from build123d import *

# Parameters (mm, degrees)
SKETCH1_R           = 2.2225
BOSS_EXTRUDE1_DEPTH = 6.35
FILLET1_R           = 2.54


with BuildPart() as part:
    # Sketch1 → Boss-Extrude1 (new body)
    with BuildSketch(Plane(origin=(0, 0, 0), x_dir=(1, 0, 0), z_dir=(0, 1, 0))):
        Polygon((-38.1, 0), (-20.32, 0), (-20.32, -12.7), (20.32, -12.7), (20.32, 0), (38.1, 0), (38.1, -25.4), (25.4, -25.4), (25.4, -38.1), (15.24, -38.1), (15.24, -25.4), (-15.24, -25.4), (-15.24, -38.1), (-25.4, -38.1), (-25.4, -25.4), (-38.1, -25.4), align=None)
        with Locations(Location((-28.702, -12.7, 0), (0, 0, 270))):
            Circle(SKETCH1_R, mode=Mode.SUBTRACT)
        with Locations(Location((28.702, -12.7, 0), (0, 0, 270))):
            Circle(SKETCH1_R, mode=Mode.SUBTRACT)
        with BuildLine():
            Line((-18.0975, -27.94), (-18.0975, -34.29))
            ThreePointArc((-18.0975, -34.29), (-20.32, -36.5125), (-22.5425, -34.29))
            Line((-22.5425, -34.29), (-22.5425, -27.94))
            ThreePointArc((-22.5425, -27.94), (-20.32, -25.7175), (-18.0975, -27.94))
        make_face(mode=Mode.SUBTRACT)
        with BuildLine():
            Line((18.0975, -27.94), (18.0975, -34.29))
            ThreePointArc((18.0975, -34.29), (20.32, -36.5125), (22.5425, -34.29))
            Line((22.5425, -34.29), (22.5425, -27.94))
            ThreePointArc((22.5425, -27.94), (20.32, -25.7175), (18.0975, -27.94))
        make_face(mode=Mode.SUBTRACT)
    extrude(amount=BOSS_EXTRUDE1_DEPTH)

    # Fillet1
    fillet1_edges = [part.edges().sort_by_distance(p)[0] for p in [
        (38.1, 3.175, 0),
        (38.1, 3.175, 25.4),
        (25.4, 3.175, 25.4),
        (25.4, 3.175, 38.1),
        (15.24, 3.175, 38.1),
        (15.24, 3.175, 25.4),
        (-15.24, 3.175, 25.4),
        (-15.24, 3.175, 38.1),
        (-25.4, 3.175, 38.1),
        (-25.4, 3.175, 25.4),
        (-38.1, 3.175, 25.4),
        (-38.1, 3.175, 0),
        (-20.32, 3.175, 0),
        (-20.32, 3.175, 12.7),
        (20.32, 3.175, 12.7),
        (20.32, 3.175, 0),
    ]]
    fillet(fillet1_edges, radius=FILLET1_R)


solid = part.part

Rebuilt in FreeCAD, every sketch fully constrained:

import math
import FreeCAD as App
import Part
import Sketcher

V = App.Vector
Q = App.Units.Quantity


def edges_at(feature, points):
    """Names of the edges that pass closest to the given points."""
    edges = feature.Shape.Edges
    near = lambda p: min(range(len(edges)), key=lambda i: edges[i].distToShape(Part.Vertex(*p))[0])
    return sorted({f"Edge{near(p) + 1}" for p in points})


def add_polygon(sketch, points):
    """Adds a closed chain of lines whose ends are joined by coincident constraints."""
    first, n = sketch.GeometryCount, len(points)
    for a, b in zip(points, points[1:] + points[:1]):
        sketch.addGeometry(Part.LineSegment(App.Vector(*a, 0), App.Vector(*b, 0)), False)
    for i in range(n):
        sketch.addConstraint(Sketcher.Constraint("Coincident", first + i, 2, first + (i + 1) % n, 1))

doc = App.newDocument("Part")
body = doc.addObject("PartDesign::Body", "Body")

# Sketch on XZ plane
sketch1 = body.newObject("Sketcher::SketchObject", "Sketch")
sketch1.AttachmentSupport = (doc.getObject("XZ_Plane"), [""])
sketch1.MapMode = "FlatFace"
add_polygon(sketch1, [(-20.3, 0), (-38.1, 0), (-38.1, 25.4), (-25.4, 25.4), (-25.4, 38.1), (-15.2, 38.1), (-15.2, 25.4), (15.2, 25.4), (15.2, 38.1), (25.4, 38.1), (25.4, 25.4), (38.1, 25.4), (38.1, 0), (20.3, 0), (20.3, 12.7), (-20.3, 12.7)])  # lines 0-15
sketch1.addGeometry(Part.ArcOfCircle(Part.Circle(V(20.3, 27.9, 0), V(0, 0, 1), 2.2), math.radians(180), math.radians(360)), False)  # 16
sketch1.addGeometry(Part.LineSegment(V(22.5, 27.9, 0), V(22.5, 34.3, 0)), False)  # 17
sketch1.addGeometry(Part.ArcOfCircle(Part.Circle(V(20.3, 34.3, 0), V(0, 0, 1), 2.2), math.radians(0), math.radians(180)), False)  # 18
sketch1.addGeometry(Part.LineSegment(V(18.1, 34.3, 0), V(18.1, 27.9, 0)), False)  # 19
sketch1.addGeometry(Part.LineSegment(V(-18.1, 27.9, 0), V(-18.1, 34.3, 0)), False)  # 20
sketch1.addGeometry(Part.ArcOfCircle(Part.Circle(V(-20.3, 34.3, 0), V(0, 0, 1), 2.2), math.radians(0), math.radians(180)), False)  # 21
sketch1.addGeometry(Part.LineSegment(V(-22.5, 34.3, 0), V(-22.5, 27.9, 0)), False)  # 22
sketch1.addGeometry(Part.ArcOfCircle(Part.Circle(V(-20.3, 27.9, 0), V(0, 0, 1), 2.2), math.radians(180), math.radians(360)), False)  # 23
sketch1.addGeometry(Part.Circle(V(28.7, 12.7, 0), V(0, 0, 1), 2.2), False)  # 24
sketch1.addGeometry(Part.Circle(V(-28.7, 12.7, 0), V(0, 0, 1), 2.2), False)  # 25
sketch1.addConstraint(Sketcher.Constraint("Tangent", 16, 2, 17, 1))
sketch1.addConstraint(Sketcher.Constraint("Tangent", 17, 2, 18, 1))
sketch1.addConstraint(Sketcher.Constraint("Tangent", 18, 2, 19, 1))
sketch1.addConstraint(Sketcher.Constraint("Tangent", 19, 2, 16, 1))
sketch1.addConstraint(Sketcher.Constraint("Tangent", 20, 2, 21, 1))
sketch1.addConstraint(Sketcher.Constraint("Tangent", 21, 2, 22, 1))
sketch1.addConstraint(Sketcher.Constraint("Tangent", 22, 2, 23, 1))
sketch1.addConstraint(Sketcher.Constraint("Tangent", 23, 2, 20, 1))
sketch1.addConstraint(Sketcher.Constraint("Horizontal", 0))
sketch1.addConstraint(Sketcher.Constraint("Vertical", 1))
sketch1.addConstraint(Sketcher.Constraint("Horizontal", 2))
sketch1.addConstraint(Sketcher.Constraint("Vertical", 3))
sketch1.addConstraint(Sketcher.Constraint("Horizontal", 4))
sketch1.addConstraint(Sketcher.Constraint("Vertical", 5))
sketch1.addConstraint(Sketcher.Constraint("Horizontal", 6))
sketch1.addConstraint(Sketcher.Constraint("Vertical", 7))
sketch1.addConstraint(Sketcher.Constraint("Horizontal", 8))
sketch1.addConstraint(Sketcher.Constraint("Vertical", 9))
sketch1.addConstraint(Sketcher.Constraint("Horizontal", 10))
sketch1.addConstraint(Sketcher.Constraint("Vertical", 11))
sketch1.addConstraint(Sketcher.Constraint("Horizontal", 12))
sketch1.addConstraint(Sketcher.Constraint("Vertical", 13))
sketch1.addConstraint(Sketcher.Constraint("Horizontal", 14))
sketch1.addConstraint(Sketcher.Constraint("Vertical", 15))
sketch1.addConstraint(Sketcher.Constraint("Vertical", 17))
sketch1.addConstraint(Sketcher.Constraint("Vertical", 19))
sketch1.addConstraint(Sketcher.Constraint("Vertical", 20))
sketch1.addConstraint(Sketcher.Constraint("Vertical", 22))
sketch1.addConstraint(Sketcher.Constraint("Equal", 18, 21))
sketch1.addConstraint(Sketcher.Constraint("Equal", 23, 24))
sketch1.addConstraint(Sketcher.Constraint("Equal", 24, 25))
sketch1.addConstraint(Sketcher.Constraint("Symmetric", 0, 2, 11, 2, -1, 1))
sketch1.addConstraint(Sketcher.Constraint("Symmetric", 18, 3, 21, 3, -2))
sketch1.addConstraint(Sketcher.Constraint("Symmetric", 24, 3, 25, 3, -2))
sketch1.addConstraint(Sketcher.Constraint("Symmetric", 4, 2, 7, 2, -2))
sketch1.addConstraint(Sketcher.Constraint("Symmetric", 2, 2, 9, 2, -2))
sketch1.addConstraint(Sketcher.Constraint("Symmetric", 12, 2, 15, 2, -2))
sketch1.addConstraint(Sketcher.Constraint("Horizontal", 16, 3, 23, 3))
sketch1.addConstraint(Sketcher.Constraint("Horizontal", 2, 2, 5, 2))
sketch1.addConstraint(Sketcher.Constraint("Horizontal", 25, 3, 13, 2))
sketch1.addConstraint(Sketcher.Constraint("Vertical", 18, 3, 12, 2))
sketch1.addConstraint(Sketcher.Constraint("Equal", 10, 3))
sketch1.addConstraint(Sketcher.Constraint("Equal", 9, 13))
sketch1.addConstraint(Sketcher.Constraint("DistanceY", 1, 1, 1, 2, Q("1 in")))
sketch1.addConstraint(Sketcher.Constraint("Diameter", 24, Q("0.175 in")))
sketch1.addConstraint(Sketcher.Constraint("DistanceX", 0, 2, 0, 1, Q("0.7 in")))
sketch1.addConstraint(Sketcher.Constraint("DistanceX", 2, 1, 2, 2, Q("0.5 in")))
sketch1.addConstraint(Sketcher.Constraint("DistanceX", 4, 1, 4, 2, Q("0.4 in")))
sketch1.addConstraint(Sketcher.Constraint("DistanceX", 6, 1, 6, 2, Q("1.2 in")))
sketch1.addConstraint(Sketcher.Constraint("DistanceY", 17, 1, 17, 2, Q("0.25 in")))
sketch1.addConstraint(Sketcher.Constraint("DistanceY", -1, 1, 16, 3, Q("1.1 in")))
sketch1.addConstraint(Sketcher.Constraint("DistanceX", -1, 1, 24, 3, Q("1.13 in")))
pad1 = body.newObject("PartDesign::Pad", "Pad")
pad1.Profile = sketch1
pad1.Length = Q("0.25 in")
pad1.Reversed = True
doc.recompute()

fillet = body.newObject("PartDesign::Fillet", "Fillet")
fillet.Base = (pad1, edges_at(pad1, [
    (38.1, 3.175, 0),
    (38.1, 3.175, 25.4),
    (25.4, 3.175, 25.4),
    (25.4, 3.175, 38.1),
    (15.24, 3.175, 38.1),
    (15.24, 3.175, 25.4),
    (-15.24, 3.175, 25.4),
    (-15.24, 3.175, 38.1),
    (-25.4, 3.175, 38.1),
    (-25.4, 3.175, 25.4),
    (-38.1, 3.175, 25.4),
    (-38.1, 3.175, 0),
    (-20.32, 3.175, 0),
    (-20.32, 3.175, 12.7),
    (20.32, 3.175, 12.7),
    (20.32, 3.175, 0),
]))
fillet.Radius = Q("0.1 in")

doc.recompute()
